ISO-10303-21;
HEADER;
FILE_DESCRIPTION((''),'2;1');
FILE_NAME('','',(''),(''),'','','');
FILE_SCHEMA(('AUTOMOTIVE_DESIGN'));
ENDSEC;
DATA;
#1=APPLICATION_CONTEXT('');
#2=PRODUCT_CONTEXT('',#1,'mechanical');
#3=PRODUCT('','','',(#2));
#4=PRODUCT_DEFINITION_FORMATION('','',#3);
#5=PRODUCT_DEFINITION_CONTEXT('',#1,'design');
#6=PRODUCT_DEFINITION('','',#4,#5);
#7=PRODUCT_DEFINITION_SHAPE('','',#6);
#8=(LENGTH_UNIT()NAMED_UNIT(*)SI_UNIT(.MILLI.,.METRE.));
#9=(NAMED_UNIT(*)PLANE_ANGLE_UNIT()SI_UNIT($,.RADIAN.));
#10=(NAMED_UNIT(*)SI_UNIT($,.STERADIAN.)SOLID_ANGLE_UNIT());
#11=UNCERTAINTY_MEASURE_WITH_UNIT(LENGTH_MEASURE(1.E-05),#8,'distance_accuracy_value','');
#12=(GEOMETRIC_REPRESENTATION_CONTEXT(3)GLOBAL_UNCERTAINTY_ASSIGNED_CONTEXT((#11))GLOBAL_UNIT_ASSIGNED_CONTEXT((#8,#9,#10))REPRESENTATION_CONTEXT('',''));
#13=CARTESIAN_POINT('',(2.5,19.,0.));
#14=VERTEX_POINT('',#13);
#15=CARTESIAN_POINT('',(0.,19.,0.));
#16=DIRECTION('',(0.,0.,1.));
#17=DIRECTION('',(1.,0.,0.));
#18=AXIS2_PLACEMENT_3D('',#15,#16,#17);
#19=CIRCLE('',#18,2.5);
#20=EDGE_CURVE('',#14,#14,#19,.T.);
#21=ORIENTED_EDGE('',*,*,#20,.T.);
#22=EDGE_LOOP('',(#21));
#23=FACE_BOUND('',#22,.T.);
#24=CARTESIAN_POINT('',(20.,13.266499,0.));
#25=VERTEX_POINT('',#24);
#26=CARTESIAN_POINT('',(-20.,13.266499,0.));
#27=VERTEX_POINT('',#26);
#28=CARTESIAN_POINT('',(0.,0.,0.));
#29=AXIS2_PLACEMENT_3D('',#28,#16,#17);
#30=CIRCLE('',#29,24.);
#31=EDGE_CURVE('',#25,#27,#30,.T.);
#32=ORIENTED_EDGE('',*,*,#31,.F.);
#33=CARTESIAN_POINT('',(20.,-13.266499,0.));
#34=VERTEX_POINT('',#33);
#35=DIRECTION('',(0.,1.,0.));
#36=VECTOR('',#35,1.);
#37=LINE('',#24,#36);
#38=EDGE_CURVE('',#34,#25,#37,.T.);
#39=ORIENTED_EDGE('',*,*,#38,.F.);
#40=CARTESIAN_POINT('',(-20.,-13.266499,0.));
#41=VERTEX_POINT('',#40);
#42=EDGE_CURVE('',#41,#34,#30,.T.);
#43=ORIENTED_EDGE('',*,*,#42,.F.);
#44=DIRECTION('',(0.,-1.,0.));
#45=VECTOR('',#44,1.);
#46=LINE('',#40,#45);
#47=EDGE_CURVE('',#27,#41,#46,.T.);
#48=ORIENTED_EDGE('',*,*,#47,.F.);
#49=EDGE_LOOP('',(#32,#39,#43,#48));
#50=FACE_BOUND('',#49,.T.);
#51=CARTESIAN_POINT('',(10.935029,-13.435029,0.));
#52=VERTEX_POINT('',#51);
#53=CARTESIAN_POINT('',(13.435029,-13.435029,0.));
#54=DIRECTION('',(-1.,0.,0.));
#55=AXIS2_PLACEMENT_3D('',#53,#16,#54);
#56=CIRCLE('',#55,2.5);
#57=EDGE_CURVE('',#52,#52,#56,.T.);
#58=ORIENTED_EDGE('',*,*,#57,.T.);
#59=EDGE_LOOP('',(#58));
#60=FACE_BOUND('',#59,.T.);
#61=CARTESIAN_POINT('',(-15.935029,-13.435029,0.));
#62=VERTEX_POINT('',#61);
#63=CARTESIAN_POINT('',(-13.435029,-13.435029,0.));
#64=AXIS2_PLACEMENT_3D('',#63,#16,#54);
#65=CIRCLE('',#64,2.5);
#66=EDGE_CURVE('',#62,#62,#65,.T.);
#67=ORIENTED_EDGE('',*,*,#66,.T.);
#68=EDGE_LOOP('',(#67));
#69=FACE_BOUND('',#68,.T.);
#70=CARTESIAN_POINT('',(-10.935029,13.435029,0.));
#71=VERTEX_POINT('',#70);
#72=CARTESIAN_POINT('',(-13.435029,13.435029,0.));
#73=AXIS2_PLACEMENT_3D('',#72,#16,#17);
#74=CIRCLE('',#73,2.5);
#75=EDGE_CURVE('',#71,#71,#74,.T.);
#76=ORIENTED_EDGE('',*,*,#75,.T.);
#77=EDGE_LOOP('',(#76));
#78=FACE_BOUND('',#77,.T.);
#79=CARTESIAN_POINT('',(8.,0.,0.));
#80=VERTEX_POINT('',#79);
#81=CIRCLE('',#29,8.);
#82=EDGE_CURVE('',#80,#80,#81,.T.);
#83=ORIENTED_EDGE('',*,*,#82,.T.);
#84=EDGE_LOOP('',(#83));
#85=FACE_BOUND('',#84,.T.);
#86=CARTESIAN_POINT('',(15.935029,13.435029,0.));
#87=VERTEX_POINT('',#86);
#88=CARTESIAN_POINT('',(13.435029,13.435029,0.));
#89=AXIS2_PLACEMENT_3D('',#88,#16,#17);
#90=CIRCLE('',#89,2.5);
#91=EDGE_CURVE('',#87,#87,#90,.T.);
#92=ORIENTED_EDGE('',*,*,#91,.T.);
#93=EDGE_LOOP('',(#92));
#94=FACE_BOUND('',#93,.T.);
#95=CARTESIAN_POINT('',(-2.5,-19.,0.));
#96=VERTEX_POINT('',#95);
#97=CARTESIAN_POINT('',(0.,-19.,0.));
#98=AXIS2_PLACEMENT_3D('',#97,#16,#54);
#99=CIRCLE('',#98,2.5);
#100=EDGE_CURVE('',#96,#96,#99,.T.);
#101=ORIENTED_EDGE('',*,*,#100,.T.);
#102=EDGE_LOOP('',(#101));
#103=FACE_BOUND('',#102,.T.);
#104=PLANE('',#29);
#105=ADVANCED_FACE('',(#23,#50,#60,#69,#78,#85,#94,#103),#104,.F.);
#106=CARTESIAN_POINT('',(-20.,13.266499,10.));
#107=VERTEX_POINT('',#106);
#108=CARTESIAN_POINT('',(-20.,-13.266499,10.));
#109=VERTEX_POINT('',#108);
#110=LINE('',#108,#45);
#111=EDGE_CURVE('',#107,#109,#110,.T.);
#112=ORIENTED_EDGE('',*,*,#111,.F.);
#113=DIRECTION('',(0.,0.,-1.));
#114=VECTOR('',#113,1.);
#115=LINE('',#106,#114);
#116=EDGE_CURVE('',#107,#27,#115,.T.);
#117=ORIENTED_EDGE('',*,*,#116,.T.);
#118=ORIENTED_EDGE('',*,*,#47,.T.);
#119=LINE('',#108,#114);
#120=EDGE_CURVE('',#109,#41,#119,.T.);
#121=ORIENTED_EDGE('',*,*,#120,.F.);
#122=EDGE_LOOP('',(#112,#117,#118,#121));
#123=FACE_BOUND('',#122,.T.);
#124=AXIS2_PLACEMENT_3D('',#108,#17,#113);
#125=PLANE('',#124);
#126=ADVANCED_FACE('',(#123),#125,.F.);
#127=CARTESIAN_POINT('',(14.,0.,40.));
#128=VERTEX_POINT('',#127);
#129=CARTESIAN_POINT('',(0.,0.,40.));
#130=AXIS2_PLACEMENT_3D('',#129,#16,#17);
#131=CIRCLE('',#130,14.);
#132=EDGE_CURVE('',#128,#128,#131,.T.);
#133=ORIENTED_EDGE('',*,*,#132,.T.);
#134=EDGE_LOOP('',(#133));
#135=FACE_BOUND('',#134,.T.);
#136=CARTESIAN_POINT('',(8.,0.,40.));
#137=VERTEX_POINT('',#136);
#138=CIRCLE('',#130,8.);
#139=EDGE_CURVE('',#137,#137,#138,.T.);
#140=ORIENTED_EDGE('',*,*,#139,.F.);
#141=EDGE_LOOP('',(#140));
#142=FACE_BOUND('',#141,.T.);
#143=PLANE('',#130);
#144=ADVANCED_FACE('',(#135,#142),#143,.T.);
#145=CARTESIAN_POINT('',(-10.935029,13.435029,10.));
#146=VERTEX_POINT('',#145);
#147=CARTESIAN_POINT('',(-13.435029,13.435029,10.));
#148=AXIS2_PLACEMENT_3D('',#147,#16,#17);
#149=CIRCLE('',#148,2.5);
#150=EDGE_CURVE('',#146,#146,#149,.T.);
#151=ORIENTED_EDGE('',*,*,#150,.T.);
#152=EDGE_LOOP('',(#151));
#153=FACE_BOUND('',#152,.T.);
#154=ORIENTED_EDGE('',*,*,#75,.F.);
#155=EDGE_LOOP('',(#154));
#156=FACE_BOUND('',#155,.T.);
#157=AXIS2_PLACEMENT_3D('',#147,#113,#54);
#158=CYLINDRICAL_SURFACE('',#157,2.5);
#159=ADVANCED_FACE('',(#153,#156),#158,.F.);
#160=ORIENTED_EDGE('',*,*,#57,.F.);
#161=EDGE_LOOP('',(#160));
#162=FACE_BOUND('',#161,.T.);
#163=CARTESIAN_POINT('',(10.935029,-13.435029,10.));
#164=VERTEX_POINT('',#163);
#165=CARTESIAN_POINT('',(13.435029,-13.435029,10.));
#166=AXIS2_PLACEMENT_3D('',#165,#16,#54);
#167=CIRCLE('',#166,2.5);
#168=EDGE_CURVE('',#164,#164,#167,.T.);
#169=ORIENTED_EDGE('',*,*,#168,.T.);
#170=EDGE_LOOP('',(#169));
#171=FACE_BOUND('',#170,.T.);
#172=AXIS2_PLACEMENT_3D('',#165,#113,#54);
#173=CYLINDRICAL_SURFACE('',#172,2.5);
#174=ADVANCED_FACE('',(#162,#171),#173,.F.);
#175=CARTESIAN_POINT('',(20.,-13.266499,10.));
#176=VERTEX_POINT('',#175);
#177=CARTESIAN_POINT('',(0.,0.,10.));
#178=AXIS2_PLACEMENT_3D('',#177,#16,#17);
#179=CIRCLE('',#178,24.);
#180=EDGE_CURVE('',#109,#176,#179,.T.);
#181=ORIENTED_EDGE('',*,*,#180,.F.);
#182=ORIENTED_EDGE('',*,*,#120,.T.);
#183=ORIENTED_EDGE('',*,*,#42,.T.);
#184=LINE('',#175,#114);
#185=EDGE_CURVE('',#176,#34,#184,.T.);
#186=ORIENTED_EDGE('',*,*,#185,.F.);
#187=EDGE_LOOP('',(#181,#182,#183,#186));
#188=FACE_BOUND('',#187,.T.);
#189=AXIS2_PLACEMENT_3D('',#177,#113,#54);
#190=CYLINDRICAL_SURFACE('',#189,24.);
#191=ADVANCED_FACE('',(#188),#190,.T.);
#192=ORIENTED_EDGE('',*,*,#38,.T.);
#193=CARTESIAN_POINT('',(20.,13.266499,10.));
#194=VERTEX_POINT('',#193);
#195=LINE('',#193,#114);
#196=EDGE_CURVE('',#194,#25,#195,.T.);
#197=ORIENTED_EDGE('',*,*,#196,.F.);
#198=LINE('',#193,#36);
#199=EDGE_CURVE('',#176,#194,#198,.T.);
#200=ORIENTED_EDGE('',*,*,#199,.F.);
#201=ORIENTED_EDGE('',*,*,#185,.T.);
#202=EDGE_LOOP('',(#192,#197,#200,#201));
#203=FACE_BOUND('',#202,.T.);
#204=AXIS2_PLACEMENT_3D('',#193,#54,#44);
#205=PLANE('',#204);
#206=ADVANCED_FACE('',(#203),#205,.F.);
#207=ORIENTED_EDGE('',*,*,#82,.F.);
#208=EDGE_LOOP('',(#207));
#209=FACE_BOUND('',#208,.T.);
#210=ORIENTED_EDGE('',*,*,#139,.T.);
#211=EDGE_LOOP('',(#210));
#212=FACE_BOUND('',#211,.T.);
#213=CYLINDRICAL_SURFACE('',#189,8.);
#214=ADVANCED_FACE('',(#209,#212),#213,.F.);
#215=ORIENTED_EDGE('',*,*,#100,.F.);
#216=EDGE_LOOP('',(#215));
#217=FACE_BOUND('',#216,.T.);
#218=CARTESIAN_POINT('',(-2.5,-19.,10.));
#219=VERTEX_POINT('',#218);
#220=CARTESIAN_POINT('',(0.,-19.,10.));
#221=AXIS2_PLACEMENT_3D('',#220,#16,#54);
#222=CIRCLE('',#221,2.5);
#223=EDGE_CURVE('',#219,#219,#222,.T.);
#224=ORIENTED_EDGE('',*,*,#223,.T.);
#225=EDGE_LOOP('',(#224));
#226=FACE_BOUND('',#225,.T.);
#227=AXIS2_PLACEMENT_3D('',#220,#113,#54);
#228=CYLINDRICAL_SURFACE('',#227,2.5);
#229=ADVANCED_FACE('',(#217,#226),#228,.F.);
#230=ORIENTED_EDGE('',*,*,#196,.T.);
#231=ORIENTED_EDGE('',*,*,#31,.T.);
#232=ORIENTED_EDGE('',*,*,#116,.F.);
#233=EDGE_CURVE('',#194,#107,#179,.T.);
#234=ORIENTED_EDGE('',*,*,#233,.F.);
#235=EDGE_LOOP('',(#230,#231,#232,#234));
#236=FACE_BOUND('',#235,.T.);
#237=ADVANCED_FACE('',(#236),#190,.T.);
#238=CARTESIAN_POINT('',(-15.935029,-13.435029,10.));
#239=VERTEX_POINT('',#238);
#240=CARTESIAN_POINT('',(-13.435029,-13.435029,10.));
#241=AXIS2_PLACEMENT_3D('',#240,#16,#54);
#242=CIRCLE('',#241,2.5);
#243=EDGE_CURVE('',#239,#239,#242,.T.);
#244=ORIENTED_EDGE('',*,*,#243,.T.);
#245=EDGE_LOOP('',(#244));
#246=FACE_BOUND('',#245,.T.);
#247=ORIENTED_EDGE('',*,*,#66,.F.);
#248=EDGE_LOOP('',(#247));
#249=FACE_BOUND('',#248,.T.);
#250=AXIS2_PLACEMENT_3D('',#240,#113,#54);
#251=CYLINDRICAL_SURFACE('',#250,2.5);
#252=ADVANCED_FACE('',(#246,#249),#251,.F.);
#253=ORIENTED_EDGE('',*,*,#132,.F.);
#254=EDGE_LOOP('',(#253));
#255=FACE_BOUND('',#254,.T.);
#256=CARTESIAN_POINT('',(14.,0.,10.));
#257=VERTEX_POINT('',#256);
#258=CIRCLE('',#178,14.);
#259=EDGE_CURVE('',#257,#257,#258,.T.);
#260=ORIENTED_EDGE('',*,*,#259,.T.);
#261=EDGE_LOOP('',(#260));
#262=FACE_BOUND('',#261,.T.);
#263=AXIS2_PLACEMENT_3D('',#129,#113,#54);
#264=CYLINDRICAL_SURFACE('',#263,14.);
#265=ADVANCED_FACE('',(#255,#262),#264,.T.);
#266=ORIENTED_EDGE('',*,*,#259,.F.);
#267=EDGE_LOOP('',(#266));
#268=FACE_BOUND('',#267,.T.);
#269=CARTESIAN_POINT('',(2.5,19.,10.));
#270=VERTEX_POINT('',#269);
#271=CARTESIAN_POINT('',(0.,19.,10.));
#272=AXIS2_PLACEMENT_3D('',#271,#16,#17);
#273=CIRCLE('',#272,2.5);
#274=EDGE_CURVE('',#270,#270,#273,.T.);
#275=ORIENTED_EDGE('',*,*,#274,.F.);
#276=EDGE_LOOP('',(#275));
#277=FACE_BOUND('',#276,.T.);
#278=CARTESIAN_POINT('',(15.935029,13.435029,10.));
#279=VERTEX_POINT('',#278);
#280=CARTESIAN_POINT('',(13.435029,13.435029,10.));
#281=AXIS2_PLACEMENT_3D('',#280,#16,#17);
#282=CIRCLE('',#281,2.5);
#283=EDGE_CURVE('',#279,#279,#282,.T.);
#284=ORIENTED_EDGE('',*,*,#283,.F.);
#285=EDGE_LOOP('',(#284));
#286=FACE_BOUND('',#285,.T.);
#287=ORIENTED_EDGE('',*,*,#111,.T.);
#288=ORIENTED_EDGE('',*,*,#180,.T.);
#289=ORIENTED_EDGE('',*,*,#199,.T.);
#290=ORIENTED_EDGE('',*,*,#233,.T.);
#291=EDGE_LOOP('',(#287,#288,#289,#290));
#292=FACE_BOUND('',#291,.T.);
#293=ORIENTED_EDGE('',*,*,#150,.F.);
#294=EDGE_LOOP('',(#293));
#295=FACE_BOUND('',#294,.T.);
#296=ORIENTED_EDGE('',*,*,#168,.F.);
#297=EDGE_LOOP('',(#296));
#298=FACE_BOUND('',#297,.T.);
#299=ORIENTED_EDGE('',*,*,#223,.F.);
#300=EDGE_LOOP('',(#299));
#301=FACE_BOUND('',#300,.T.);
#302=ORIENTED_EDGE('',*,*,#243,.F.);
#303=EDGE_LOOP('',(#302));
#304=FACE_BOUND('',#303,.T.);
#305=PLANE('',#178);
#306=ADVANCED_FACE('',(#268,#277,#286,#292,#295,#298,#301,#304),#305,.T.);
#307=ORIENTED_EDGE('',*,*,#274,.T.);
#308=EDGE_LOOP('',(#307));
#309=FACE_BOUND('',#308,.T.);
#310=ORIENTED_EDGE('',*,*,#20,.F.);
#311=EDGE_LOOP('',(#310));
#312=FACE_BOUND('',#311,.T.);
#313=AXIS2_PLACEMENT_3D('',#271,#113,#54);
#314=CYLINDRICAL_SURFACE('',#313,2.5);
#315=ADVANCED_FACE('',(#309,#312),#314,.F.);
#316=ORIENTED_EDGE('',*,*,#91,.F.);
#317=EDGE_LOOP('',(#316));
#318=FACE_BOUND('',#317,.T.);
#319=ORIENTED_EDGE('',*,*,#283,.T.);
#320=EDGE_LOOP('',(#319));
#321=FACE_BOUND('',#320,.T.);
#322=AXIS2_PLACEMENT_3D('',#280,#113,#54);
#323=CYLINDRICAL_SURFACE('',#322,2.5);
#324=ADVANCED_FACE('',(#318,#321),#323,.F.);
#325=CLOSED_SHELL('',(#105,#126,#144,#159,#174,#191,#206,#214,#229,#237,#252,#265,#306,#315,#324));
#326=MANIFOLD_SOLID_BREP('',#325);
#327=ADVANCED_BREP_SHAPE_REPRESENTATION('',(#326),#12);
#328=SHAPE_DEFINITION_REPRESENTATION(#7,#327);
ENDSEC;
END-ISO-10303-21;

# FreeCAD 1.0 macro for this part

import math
import FreeCAD as App
import Part
import Sketcher
Q = App.Units.Quantity

doc = App.newDocument("Part")
body = doc.addObject("PartDesign::Body", "Body")

# Sketch on XY plane
sketch1 = body.newObject("Sketcher::SketchObject", "Sketch")
sketch1.AttachmentSupport = (doc.getObject("XY_Plane"), [""])
sketch1.MapMode = "FlatFace"
sketch1.addGeometry([
    Part.LineSegment(App.Vector(20, -13.266499, 0), App.Vector(20, 13.266499, 0)),  # 0
    Part.ArcOfCircle(Part.Circle(App.Vector(0, 0, 0), App.Vector(0, 0, 1), 24), math.radians(33.55731), math.radians(146.44269)),  # 1
    Part.LineSegment(App.Vector(-20, 13.266499, 0), App.Vector(-20, -13.266499, 0)),  # 2
    Part.ArcOfCircle(Part.Circle(App.Vector(0, 0, 0), App.Vector(0, 0, 1), 24), math.radians(-146.44269), math.radians(-33.55731)),  # 3
    Part.Circle(App.Vector(13.435029, -13.435029, 0), App.Vector(0, 0, 1), 2.5),  # 4
    Part.Circle(App.Vector(0, -19, 0), App.Vector(0, 0, 1), 2.5),  # 5
    Part.Circle(App.Vector(-13.435029, -13.435029, 0), App.Vector(0, 0, 1), 2.5),  # 6
    Part.Circle(App.Vector(13.435029, 13.435029, 0), App.Vector(0, 0, 1), 2.5),  # 7
    Part.Circle(App.Vector(0, 0, 0), App.Vector(0, 0, 1), 8),  # 8
    Part.Circle(App.Vector(0, 19, 0), App.Vector(0, 0, 1), 2.5),  # 9
    Part.Circle(App.Vector(-13.435029, 13.435029, 0), App.Vector(0, 0, 1), 2.5),  # 10
], False)
sketch1.addConstraint([
    Sketcher.Constraint("Coincident", 0, 2, 1, 1),
    Sketcher.Constraint("Coincident", 1, 2, 2, 1),
    Sketcher.Constraint("Coincident", 2, 2, 3, 1),
    Sketcher.Constraint("Coincident", 3, 2, 0, 1),
    Sketcher.Constraint("Vertical", 0),
    Sketcher.Constraint("Vertical", 2),
    Sketcher.Constraint("Coincident", 1, 3, -1, 1),
    Sketcher.Constraint("Coincident", 3, 3, -1, 1),
    Sketcher.Constraint("Coincident", 8, 3, -1, 1),
    Sketcher.Constraint("Equal", 1, 3),
    Sketcher.Constraint("Equal", 4, 5),
    Sketcher.Constraint("Equal", 5, 6),
    Sketcher.Constraint("Equal", 6, 7),
    Sketcher.Constraint("Equal", 7, 9),
    Sketcher.Constraint("Equal", 9, 10),
    Sketcher.Constraint("Symmetric", 6, 3, 7, 3, -1, 1),
    Sketcher.Constraint("Symmetric", 5, 3, 9, 3, -1, 1),
    Sketcher.Constraint("Symmetric", 4, 3, 10, 3, -1, 1),
    Sketcher.Constraint("Symmetric", 4, 3, 6, 3, -2),
    Sketcher.Constraint("PointOnObject", 5, 3, -2),
    Sketcher.Constraint("Horizontal", 0, 2, 1, 2),
    Sketcher.Constraint("Diameter", 4, Q("5 mm")),
    Sketcher.Constraint("Diameter", 8, Q("16 mm")),
    Sketcher.Constraint("Radius", 1, Q("24 mm")),
    Sketcher.Constraint("DistanceY", 5, 3, -1, 1, Q("19 mm")),
    Sketcher.Constraint("DistanceX", -1, 1, 0, 2, Q("20 mm")),
    Sketcher.Constraint("DistanceX", -1, 1, 4, 3, Q("13.435029 mm")),
    Sketcher.Constraint("DistanceY", 4, 3, -1, 1, Q("13.435029 mm")),
])
pad1 = body.newObject("PartDesign::Pad", "Pad")
pad1.Profile = sketch1
pad1.Length = 10

# Sketch on XY plane
sketch2 = body.newObject("Sketcher::SketchObject", "Sketch001")
sketch2.AttachmentSupport = (doc.getObject("XY_Plane"), [""])
sketch2.MapMode = "FlatFace"
sketch2.AttachmentOffset = App.Placement(App.Vector(0, 0, 10), App.Rotation())
sketch2.addGeometry([
    Part.Circle(App.Vector(0, 0, 0), App.Vector(0, 0, 1), 14),
    Part.Circle(App.Vector(0, 0, 0), App.Vector(0, 0, 1), 8),
], False)
sketch2.addConstraint([
    Sketcher.Constraint("Coincident", 0, 3, -1, 1),
    Sketcher.Constraint("Coincident", 1, 3, -1, 1),
    Sketcher.Constraint("Diameter", 0, Q("28 mm")),
    Sketcher.Constraint("Diameter", 1, Q("16 mm")),
])
pad2 = body.newObject("PartDesign::Pad", "Pad001")
pad2.Profile = sketch2
pad2.Length = 30

doc.recompute()
